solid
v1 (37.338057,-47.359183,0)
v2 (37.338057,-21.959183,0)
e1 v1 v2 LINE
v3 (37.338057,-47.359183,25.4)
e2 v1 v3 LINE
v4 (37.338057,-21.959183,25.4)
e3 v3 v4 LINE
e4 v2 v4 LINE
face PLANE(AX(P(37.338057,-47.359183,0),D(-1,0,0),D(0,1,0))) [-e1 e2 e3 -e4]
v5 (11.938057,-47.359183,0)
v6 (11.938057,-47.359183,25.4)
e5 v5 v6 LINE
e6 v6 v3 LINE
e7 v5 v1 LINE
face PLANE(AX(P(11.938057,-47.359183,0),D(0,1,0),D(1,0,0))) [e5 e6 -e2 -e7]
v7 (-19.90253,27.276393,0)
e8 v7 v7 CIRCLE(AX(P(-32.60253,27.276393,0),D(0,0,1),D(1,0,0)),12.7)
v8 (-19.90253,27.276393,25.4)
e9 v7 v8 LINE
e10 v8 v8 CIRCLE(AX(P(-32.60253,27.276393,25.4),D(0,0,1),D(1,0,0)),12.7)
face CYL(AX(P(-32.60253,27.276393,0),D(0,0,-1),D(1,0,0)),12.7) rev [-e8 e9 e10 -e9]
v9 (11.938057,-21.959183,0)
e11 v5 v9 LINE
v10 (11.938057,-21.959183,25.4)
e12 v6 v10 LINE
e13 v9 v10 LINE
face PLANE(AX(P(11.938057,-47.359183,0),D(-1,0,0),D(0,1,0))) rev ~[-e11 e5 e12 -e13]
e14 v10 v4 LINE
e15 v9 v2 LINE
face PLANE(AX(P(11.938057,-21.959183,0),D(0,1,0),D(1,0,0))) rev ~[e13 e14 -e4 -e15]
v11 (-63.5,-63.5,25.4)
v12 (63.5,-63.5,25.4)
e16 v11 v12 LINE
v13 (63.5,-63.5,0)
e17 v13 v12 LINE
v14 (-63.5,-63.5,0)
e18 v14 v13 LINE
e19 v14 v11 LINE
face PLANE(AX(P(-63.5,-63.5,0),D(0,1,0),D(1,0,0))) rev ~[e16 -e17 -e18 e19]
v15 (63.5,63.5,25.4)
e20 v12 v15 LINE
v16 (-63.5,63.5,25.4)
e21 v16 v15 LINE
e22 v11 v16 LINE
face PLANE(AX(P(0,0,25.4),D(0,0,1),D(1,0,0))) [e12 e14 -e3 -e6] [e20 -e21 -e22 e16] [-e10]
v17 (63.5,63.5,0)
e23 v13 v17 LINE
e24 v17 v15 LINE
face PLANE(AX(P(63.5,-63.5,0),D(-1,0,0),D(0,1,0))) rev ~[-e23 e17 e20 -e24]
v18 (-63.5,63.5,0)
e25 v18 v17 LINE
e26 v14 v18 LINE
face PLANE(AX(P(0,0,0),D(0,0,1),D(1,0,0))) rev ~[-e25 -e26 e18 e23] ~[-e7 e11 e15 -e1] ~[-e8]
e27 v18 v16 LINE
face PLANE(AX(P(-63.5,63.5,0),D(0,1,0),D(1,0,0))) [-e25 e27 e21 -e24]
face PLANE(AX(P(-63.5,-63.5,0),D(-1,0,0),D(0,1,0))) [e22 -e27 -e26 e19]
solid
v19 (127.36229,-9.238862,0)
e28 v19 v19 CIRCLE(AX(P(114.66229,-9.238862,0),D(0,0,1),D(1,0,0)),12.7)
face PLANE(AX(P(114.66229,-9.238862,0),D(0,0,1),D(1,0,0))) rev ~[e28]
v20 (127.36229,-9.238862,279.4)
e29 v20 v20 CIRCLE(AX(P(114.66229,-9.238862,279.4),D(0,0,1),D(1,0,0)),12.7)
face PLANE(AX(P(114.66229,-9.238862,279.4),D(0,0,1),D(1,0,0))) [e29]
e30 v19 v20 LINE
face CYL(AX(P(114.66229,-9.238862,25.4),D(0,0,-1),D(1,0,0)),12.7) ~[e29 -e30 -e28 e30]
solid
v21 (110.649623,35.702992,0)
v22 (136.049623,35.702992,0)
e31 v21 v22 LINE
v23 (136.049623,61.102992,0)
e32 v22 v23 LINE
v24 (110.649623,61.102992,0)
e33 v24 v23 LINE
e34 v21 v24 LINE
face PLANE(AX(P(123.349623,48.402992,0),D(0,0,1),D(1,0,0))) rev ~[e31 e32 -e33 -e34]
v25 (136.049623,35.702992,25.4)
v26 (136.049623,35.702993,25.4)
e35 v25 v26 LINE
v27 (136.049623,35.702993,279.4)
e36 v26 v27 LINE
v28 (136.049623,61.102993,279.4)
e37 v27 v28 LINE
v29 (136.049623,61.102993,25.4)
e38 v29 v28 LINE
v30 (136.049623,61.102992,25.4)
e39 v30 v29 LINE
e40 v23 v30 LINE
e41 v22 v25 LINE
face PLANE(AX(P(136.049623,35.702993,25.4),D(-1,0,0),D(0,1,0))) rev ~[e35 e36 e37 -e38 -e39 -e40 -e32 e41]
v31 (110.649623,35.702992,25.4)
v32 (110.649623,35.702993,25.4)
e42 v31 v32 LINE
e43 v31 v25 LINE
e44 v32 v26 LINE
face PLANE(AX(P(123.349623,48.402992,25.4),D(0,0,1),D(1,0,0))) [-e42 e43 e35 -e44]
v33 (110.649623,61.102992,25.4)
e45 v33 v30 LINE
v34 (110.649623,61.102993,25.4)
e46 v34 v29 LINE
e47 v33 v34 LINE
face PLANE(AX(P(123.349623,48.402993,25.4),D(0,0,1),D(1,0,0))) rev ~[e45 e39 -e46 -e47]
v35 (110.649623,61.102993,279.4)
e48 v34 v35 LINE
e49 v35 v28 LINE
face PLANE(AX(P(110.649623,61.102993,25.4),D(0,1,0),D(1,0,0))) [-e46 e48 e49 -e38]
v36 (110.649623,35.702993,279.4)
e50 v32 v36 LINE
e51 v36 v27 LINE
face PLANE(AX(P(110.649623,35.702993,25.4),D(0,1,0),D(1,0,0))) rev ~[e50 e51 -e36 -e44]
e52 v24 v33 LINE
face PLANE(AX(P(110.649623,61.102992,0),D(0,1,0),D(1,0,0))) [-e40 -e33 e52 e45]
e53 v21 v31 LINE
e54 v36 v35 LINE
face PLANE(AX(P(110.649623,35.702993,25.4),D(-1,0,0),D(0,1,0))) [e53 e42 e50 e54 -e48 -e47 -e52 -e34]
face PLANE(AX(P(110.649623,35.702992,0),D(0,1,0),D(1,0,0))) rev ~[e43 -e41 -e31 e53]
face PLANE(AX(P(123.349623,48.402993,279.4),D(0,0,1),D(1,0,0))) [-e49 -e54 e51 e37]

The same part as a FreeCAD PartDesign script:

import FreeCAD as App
import Part
import Sketcher
from FreeCAD import Vector
Q = App.Units.Quantity


def add_polygon(sketch, points):
    """Adds a closed chain of lines whose ends are joined by coincident constraints."""
    first, n = sketch.GeometryCount, len(points)
    for a, b in zip(points, points[1:] + points[:1]):
        sketch.addGeometry(Part.LineSegment(App.Vector(*a, 0), App.Vector(*b, 0)), False)
    for i in range(n):
        sketch.addConstraint(Sketcher.Constraint("Coincident", first + i, 2, first + (i + 1) % n, 1))

doc = App.newDocument("Part")
body = doc.addObject("PartDesign::Body", "Body")
body.AllowCompound = True

# Sketch on XY plane
sketch1 = body.newObject("Sketcher::SketchObject", "Sketch")
sketch1.AttachmentSupport = (doc.getObject("XY_Plane"), [""])
sketch1.MapMode = "FlatFace"
add_polygon(sketch1, [(-63.5, 63.5), (-63.5, -63.5), (63.5, -63.5), (63.5, 63.5)])  # lines 0-3
add_polygon(sketch1, [(37.338057, -47.359183), (11.938057, -47.359183), (11.938057, -21.959183), (37.338057, -21.959183)])  # lines 4-7
sketch1.addGeometry(Part.Circle(Vector(-32.60253, 27.276393, 0), Vector(0, 0, 1), 12.7), False)  # 8
add_polygon(sketch1, [(110.649623, 61.102992), (110.649623, 35.702992), (136.049623, 35.702992), (136.049623, 61.102992)])  # lines 9-12
sketch1.addGeometry(Part.Circle(Vector(114.66229, -9.238862, 0), Vector(0, 0, 1), 12.7), False)  # 13
sketch1.addConstraint(Sketcher.Constraint("Vertical", 0))
sketch1.addConstraint(Sketcher.Constraint("Horizontal", 1))
sketch1.addConstraint(Sketcher.Constraint("Vertical", 2))
sketch1.addConstraint(Sketcher.Constraint("Horizontal", 3))
sketch1.addConstraint(Sketcher.Constraint("Horizontal", 4))
sketch1.addConstraint(Sketcher.Constraint("Vertical", 5))
sketch1.addConstraint(Sketcher.Constraint("Horizontal", 6))
sketch1.addConstraint(Sketcher.Constraint("Vertical", 7))
sketch1.addConstraint(Sketcher.Constraint("Vertical", 9))
sketch1.addConstraint(Sketcher.Constraint("Horizontal", 10))
sketch1.addConstraint(Sketcher.Constraint("Vertical", 11))
sketch1.addConstraint(Sketcher.Constraint("Horizontal", 12))
sketch1.addConstraint(Sketcher.Constraint("Equal", 8, 13))
sketch1.addConstraint(Sketcher.Constraint("Symmetric", 0, 2, 2, 2, -1, 1))
sketch1.addConstraint(Sketcher.Constraint("Equal", 6, 10))
sketch1.addConstraint(Sketcher.Constraint("Equal", 3, 0))
sketch1.addConstraint(Sketcher.Constraint("Equal", 12, 5))
sketch1.addConstraint(Sketcher.Constraint("Equal", 7, 9))
sketch1.addConstraint(Sketcher.Constraint("Diameter", 8, Q("1 in")))
sketch1.addConstraint(Sketcher.Constraint("DistanceX", 1, 1, 1, 2, Q("5 in")))
sketch1.addConstraint(Sketcher.Constraint("DistanceX", 4, 2, 4, 1, Q("1 in")))
sketch1.addConstraint(Sketcher.Constraint("DistanceY", 4, 2, 13, 3, Q("1.5008 in")))
sketch1.addConstraint(Sketcher.Constraint("DistanceX", 8, 3, -1, 1, Q("32.60253 mm")))
sketch1.addConstraint(Sketcher.Constraint("DistanceX", -1, 1, 13, 3, Q("114.66229 mm")))
sketch1.addConstraint(Sketcher.Constraint("DistanceY", 13, 3, -1, 1, Q("9.238862 mm")))
sketch1.addConstraint(Sketcher.Constraint("DistanceY", 1, 2, 9, 2, Q("99.202992 mm")))
sketch1.addConstraint(Sketcher.Constraint("DistanceY", -1, 1, 8, 3, Q("27.276393 mm")))
sketch1.addConstraint(Sketcher.Constraint("DistanceX", -1, 1, 4, 2, Q("11.938057 mm")))
sketch1.addConstraint(Sketcher.Constraint("DistanceX", -1, 1, 9, 2, Q("110.649623 mm")))
pad1 = body.newObject("PartDesign::Pad", "Pad")
pad1.Profile = sketch1
pad1.Length = Q("1 in")

# Sketch on XY plane
sketch2 = body.newObject("Sketcher::SketchObject", "Sketch001")
sketch2.AttachmentSupport = (doc.getObject("XY_Plane"), [""])
sketch2.MapMode = "FlatFace"
sketch2.AttachmentOffset = App.Placement(Vector(0, 0, 1 * 25.4), App.Rotation())
sketch2.addGeometry(Part.Circle(Vector(114.66229, -9.238862, 0), Vector(0, 0, 1), 12.7), False)  # 0
add_polygon(sketch2, [(110.649623, 61.102993), (110.649623, 35.702993), (136.049623, 35.702993), (136.049623, 61.102993)])  # lines 1-4
sketch2.addConstraint(Sketcher.Constraint("Vertical", 1))
sketch2.addConstraint(Sketcher.Constraint("Horizontal", 2))
sketch2.addConstraint(Sketcher.Constraint("Vertical", 3))
sketch2.addConstraint(Sketcher.Constraint("Horizontal", 4))
sketch2.addConstraint(Sketcher.Constraint("Equal", 4, 1))
sketch2.addConstraint(Sketcher.Constraint("Diameter", 0, Q("1 in")))
sketch2.addConstraint(Sketcher.Constraint("DistanceX", 2, 1, 2, 2, Q("1 in")))
sketch2.addConstraint(Sketcher.Constraint("DistanceX", -1, 1, 0, 3, Q("114.66229 mm")))
sketch2.addConstraint(Sketcher.Constraint("DistanceY", 0, 3, -1, 1, Q("9.238862 mm")))
sketch2.addConstraint(Sketcher.Constraint("DistanceX", -1, 1, 1, 2, Q("110.649623 mm")))
sketch2.addConstraint(Sketcher.Constraint("DistanceY", -1, 1, 1, 2, Q("35.702993 mm")))
pad2 = body.newObject("PartDesign::Pad", "Pad001")
pad2.Profile = sketch2
pad2.Length = Q("10 in")

doc.recompute()
